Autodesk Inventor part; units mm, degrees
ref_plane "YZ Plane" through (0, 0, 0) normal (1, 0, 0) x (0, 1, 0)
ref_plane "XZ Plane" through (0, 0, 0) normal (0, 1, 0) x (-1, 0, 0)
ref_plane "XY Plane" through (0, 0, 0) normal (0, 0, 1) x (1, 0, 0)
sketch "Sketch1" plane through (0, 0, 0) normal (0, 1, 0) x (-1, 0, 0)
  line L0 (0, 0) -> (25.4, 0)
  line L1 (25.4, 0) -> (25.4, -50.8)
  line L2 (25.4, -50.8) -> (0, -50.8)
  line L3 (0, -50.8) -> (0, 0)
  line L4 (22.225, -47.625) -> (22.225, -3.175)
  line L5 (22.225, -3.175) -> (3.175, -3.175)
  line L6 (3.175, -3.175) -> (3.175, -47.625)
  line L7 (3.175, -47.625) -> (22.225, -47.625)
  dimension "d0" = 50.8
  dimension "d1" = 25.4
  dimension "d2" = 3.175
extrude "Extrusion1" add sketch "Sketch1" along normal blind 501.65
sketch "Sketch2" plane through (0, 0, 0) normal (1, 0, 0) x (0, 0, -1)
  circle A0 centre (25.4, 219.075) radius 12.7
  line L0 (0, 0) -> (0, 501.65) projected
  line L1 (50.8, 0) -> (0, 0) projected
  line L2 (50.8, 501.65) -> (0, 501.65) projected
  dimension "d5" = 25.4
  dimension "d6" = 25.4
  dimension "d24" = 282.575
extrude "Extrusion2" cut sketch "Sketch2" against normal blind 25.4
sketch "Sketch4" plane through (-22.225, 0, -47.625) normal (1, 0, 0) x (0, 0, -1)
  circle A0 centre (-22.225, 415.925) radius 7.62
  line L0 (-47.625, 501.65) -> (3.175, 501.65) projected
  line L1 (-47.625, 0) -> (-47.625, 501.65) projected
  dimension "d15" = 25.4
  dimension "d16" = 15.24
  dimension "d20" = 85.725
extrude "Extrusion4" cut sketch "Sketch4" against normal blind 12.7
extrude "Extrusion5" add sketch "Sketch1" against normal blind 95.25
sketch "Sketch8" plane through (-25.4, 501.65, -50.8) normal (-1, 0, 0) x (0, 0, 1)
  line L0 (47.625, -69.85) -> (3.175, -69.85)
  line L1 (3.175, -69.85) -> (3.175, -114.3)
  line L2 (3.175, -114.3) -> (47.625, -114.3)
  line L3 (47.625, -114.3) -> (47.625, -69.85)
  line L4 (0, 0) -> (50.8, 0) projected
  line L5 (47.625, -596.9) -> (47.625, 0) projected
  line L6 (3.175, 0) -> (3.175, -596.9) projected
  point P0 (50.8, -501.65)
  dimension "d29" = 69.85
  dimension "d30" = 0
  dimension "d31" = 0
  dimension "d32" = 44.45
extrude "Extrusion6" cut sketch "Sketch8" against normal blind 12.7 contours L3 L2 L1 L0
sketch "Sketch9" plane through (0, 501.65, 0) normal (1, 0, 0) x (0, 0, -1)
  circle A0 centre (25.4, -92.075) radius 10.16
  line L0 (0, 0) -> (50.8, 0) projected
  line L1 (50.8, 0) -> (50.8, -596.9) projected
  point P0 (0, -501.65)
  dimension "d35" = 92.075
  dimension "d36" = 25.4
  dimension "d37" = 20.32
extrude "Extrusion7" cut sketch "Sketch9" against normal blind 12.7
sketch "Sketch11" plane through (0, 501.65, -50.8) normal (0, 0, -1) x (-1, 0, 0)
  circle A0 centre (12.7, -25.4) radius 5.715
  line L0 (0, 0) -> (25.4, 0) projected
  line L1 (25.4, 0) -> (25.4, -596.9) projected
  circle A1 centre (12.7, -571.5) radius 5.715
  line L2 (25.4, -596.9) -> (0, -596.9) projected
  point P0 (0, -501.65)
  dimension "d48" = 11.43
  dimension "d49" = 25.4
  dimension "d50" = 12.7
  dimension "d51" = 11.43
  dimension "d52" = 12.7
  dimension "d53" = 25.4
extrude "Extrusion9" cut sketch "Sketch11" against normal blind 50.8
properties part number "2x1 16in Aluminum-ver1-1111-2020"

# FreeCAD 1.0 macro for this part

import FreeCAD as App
import Part
import Sketcher
Q = App.Units.Quantity

doc = App.newDocument("Part")
body = doc.addObject("PartDesign::Body", "Body")

sketch1 = doc.addObject("Sketcher::SketchObject", "Sketch")
body.addObject(sketch1)
sketch1.AttachmentSupport = (doc.XZ_Plane, [""])
sketch1.MapMode = "FlatFace"
sketch1.addGeometry(Part.LineSegment(App.Vector(-25, 0, 0), App.Vector(0, 0, 0)), False)
sketch1.addGeometry(Part.LineSegment(App.Vector(0, 0, 0), App.Vector(0, -51, 0)), False)
sketch1.addGeometry(Part.LineSegment(App.Vector(0, -51, 0), App.Vector(-25, -51, 0)), False)
sketch1.addGeometry(Part.LineSegment(App.Vector(-25, -51, 0), App.Vector(-25, 0, 0)), False)
sketch1.addGeometry(Part.LineSegment(App.Vector(-22, -3, 0), App.Vector(-22, -48, 0)), False)
sketch1.addGeometry(Part.LineSegment(App.Vector(-22, -48, 0), App.Vector(-3, -48, 0)), False)
sketch1.addGeometry(Part.LineSegment(App.Vector(-3, -48, 0), App.Vector(-3, -3, 0)), False)
sketch1.addGeometry(Part.LineSegment(App.Vector(-3, -3, 0), App.Vector(-22, -3, 0)), False)
sketch1.addConstraint(Sketcher.Constraint("Coincident", 0, 2, 1, 1))
sketch1.addConstraint(Sketcher.Constraint("Coincident", 1, 2, 2, 1))
sketch1.addConstraint(Sketcher.Constraint("Coincident", 2, 2, 3, 1))
sketch1.addConstraint(Sketcher.Constraint("Coincident", 3, 2, 0, 1))
sketch1.addConstraint(Sketcher.Constraint("Coincident", 4, 2, 5, 1))
sketch1.addConstraint(Sketcher.Constraint("Coincident", 5, 2, 6, 1))
sketch1.addConstraint(Sketcher.Constraint("Coincident", 6, 2, 7, 1))
sketch1.addConstraint(Sketcher.Constraint("Coincident", 7, 2, 4, 1))
sketch1.addConstraint(Sketcher.Constraint("Horizontal", 0))
sketch1.addConstraint(Sketcher.Constraint("Vertical", 1))
sketch1.addConstraint(Sketcher.Constraint("Horizontal", 2))
sketch1.addConstraint(Sketcher.Constraint("Vertical", 3))
sketch1.addConstraint(Sketcher.Constraint("Vertical", 4))
sketch1.addConstraint(Sketcher.Constraint("Horizontal", 5))
sketch1.addConstraint(Sketcher.Constraint("Vertical", 6))
sketch1.addConstraint(Sketcher.Constraint("Horizontal", 7))
sketch1.addConstraint(Sketcher.Constraint("Coincident", 0, 2, -1, 1))
sketch1.addConstraint(Sketcher.Constraint("DistanceX", 0, 1, 0, 2, Q("1 in")))
sketch1.addConstraint(Sketcher.Constraint("DistanceY", 1, 2, 1, 1, Q("2 in")))
sketch1.addConstraint(Sketcher.Constraint("DistanceX", 5, 2, -1, 1, Q("0.125 in")))
sketch1.addConstraint(Sketcher.Constraint("DistanceY", 6, 2, -1, 1, Q("0.125 in")))
sketch1.addConstraint(Sketcher.Constraint("DistanceX", 2, 2, 4, 2, Q("0.125 in")))
sketch1.addConstraint(Sketcher.Constraint("DistanceY", 2, 2, 4, 2, Q("0.125 in")))
pad1 = doc.addObject("PartDesign::Pad", "Pad")
body.addObject(pad1)
pad1.Profile = sketch1
pad1.Length = Q("19.75 in")
pad1.Reversed = True

sketch2 = doc.addObject("Sketcher::SketchObject", "Sketch001")
body.addObject(sketch2)
sketch2.AttachmentSupport = (doc.YZ_Plane, [""])
sketch2.MapMode = "FlatFace"
sketch2.addGeometry(Part.Circle(App.Vector(219, -25, 0), App.Vector(0, 0, 1), 13), False)
sketch2.addConstraint(Sketcher.Constraint("Diameter", 0, Q("1 in")))
sketch2.addConstraint(Sketcher.Constraint("DistanceY", 0, 3, -1, 1, Q("1 in")))
sketch2.addConstraint(Sketcher.Constraint("DistanceX", -1, 1, 0, 3, Q("8.625 in")))
pocket1 = doc.addObject("PartDesign::Pocket", "Pocket")
body.addObject(pocket1)
pocket1.Profile = sketch2
pocket1.Length = Q("1 in")

sketch3 = doc.addObject("Sketcher::SketchObject", "Sketch002")
body.addObject(sketch3)
sketch3.AttachmentSupport = (doc.YZ_Plane, [""])
sketch3.MapMode = "FlatFace"
sketch3.AttachmentOffset = App.Placement(App.Vector(0, 0, -0.875 * 25.4), App.Rotation())
sketch3.addGeometry(Part.Circle(App.Vector(416, -25, 0), App.Vector(0, 0, 1), 8), False)
sketch3.addConstraint(Sketcher.Constraint("Diameter", 0, Q("0.6 in")))
sketch3.addConstraint(Sketcher.Constraint("DistanceY", 0, 3, -1, 1, Q("1 in")))
sketch3.addConstraint(Sketcher.Constraint("DistanceX", -1, 1, 0, 3, Q("16.375 in")))
pocket2 = doc.addObject("PartDesign::Pocket", "Pocket001")
body.addObject(pocket2)
pocket2.Profile = sketch3
pocket2.Length = Q("0.5 in")

sketch4 = doc.addObject("Sketcher::SketchObject", "Sketch003")
body.addObject(sketch4)
sketch4.AttachmentSupport = (doc.XZ_Plane, [""])
sketch4.MapMode = "FlatFace"
sketch4.addGeometry(Part.LineSegment(App.Vector(-25, 0, 0), App.Vector(0, 0, 0)), False)
sketch4.addGeometry(Part.LineSegment(App.Vector(0, 0, 0), App.Vector(0, -51, 0)), False)
sketch4.addGeometry(Part.LineSegment(App.Vector(0, -51, 0), App.Vector(-25, -51, 0)), False)
sketch4.addGeometry(Part.LineSegment(App.Vector(-25, -51, 0), App.Vector(-25, 0, 0)), False)
sketch4.addGeometry(Part.LineSegment(App.Vector(-22, -3, 0), App.Vector(-22, -48, 0)), False)
sketch4.addGeometry(Part.LineSegment(App.Vector(-22, -48, 0), App.Vector(-3, -48, 0)), False)
sketch4.addGeometry(Part.LineSegment(App.Vector(-3, -48, 0), App.Vector(-3, -3, 0)), False)
sketch4.addGeometry(Part.LineSegment(App.Vector(-3, -3, 0), App.Vector(-22, -3, 0)), False)
sketch4.addConstraint(Sketcher.Constraint("Coincident", 0, 2, 1, 1))
sketch4.addConstraint(Sketcher.Constraint("Coincident", 1, 2, 2, 1))
sketch4.addConstraint(Sketcher.Constraint("Coincident", 2, 2, 3, 1))
sketch4.addConstraint(Sketcher.Constraint("Coincident", 3, 2, 0, 1))
sketch4.addConstraint(Sketcher.Constraint("Coincident", 4, 2, 5, 1))
sketch4.addConstraint(Sketcher.Constraint("Coincident", 5, 2, 6, 1))
sketch4.addConstraint(Sketcher.Constraint("Coincident", 6, 2, 7, 1))
sketch4.addConstraint(Sketcher.Constraint("Coincident", 7, 2, 4, 1))
sketch4.addConstraint(Sketcher.Constraint("Horizontal", 0))
sketch4.addConstraint(Sketcher.Constraint("Vertical", 1))
sketch4.addConstraint(Sketcher.Constraint("Horizontal", 2))
sketch4.addConstraint(Sketcher.Constraint("Vertical", 3))
sketch4.addConstraint(Sketcher.Constraint("Vertical", 4))
sketch4.addConstraint(Sketcher.Constraint("Horizontal", 5))
sketch4.addConstraint(Sketcher.Constraint("Vertical", 6))
sketch4.addConstraint(Sketcher.Constraint("Horizontal", 7))
sketch4.addConstraint(Sketcher.Constraint("Coincident", 0, 2, -1, 1))
sketch4.addConstraint(Sketcher.Constraint("DistanceX", 0, 1, 0, 2, Q("1 in")))
sketch4.addConstraint(Sketcher.Constraint("DistanceY", 1, 2, 1, 1, Q("2 in")))
sketch4.addConstraint(Sketcher.Constraint("DistanceX", 5, 2, -1, 1, Q("0.125 in")))
sketch4.addConstraint(Sketcher.Constraint("DistanceY", 6, 2, -1, 1, Q("0.125 in")))
sketch4.addConstraint(Sketcher.Constraint("DistanceX", 2, 2, 4, 2, Q("0.125 in")))
sketch4.addConstraint(Sketcher.Constraint("DistanceY", 2, 2, 4, 2, Q("0.125 in")))
pad2 = doc.addObject("PartDesign::Pad", "Pad001")
body.addObject(pad2)
pad2.Profile = sketch4
pad2.Length = Q("3.75 in")

sketch5 = doc.addObject("Sketcher::SketchObject", "Sketch004")
body.addObject(sketch5)
sketch5.AttachmentSupport = (doc.YZ_Plane, [""])
sketch5.MapMode = "FlatFace"
sketch5.AttachmentOffset = App.Placement(App.Vector(0, 0, -1 * 25.4), App.Rotation())
sketch5.addGeometry(Part.LineSegment(App.Vector(387, -3, 0), App.Vector(432, -3, 0)), False)
sketch5.addGeometry(Part.LineSegment(App.Vector(432, -3, 0), App.Vector(432, -48, 0)), False)
sketch5.addGeometry(Part.LineSegment(App.Vector(432, -48, 0), App.Vector(387, -48, 0)), False)
sketch5.addGeometry(Part.LineSegment(App.Vector(387, -48, 0), App.Vector(387, -3, 0)), False)
sketch5.addConstraint(Sketcher.Constraint("Coincident", 0, 2, 1, 1))
sketch5.addConstraint(Sketcher.Constraint("Coincident", 1, 2, 2, 1))
sketch5.addConstraint(Sketcher.Constraint("Coincident", 2, 2, 3, 1))
sketch5.addConstraint(Sketcher.Constraint("Coincident", 3, 2, 0, 1))
sketch5.addConstraint(Sketcher.Constraint("Horizontal", 0))
sketch5.addConstraint(Sketcher.Constraint("Vertical", 1))
sketch5.addConstraint(Sketcher.Constraint("Horizontal", 2))
sketch5.addConstraint(Sketcher.Constraint("Vertical", 3))
sketch5.addConstraint(Sketcher.Constraint("Equal", 2, 1))
sketch5.addConstraint(Sketcher.Constraint("DistanceX", 0, 1, 0, 2, Q("1.75 in")))
sketch5.addConstraint(Sketcher.Constraint("DistanceX", -1, 1, 0, 2, Q("17 in")))
sketch5.addConstraint(Sketcher.Constraint("DistanceY", 0, 2, -1, 1, Q("0.125 in")))
pocket3 = doc.addObject("PartDesign::Pocket", "Pocket002")
body.addObject(pocket3)
pocket3.Profile = sketch5
pocket3.Length = Q("0.5 in")
pocket3.Reversed = True

sketch6 = doc.addObject("Sketcher::SketchObject", "Sketch005")
body.addObject(sketch6)
sketch6.AttachmentSupport = (doc.YZ_Plane, [""])
sketch6.MapMode = "FlatFace"
sketch6.addGeometry(Part.Circle(App.Vector(410, -25, 0), App.Vector(0, 0, 1), 10), False)
sketch6.addConstraint(Sketcher.Constraint("Diameter", 0, Q("0.8 in")))
sketch6.addConstraint(Sketcher.Constraint("DistanceY", 0, 3, -1, 1, Q("1 in")))
sketch6.addConstraint(Sketcher.Constraint("DistanceX", -1, 1, 0, 3, Q("16.125 in")))
pocket4 = doc.addObject("PartDesign::Pocket", "Pocket003")
body.addObject(pocket4)
pocket4.Profile = sketch6
pocket4.Length = Q("0.5 in")

sketch7 = doc.addObject("Sketcher::SketchObject", "Sketch006")
body.addObject(sketch7)
sketch7.AttachmentSupport = (doc.XY_Plane, [""])
sketch7.MapMode = "FlatFace"
sketch7.AttachmentOffset = App.Placement(App.Vector(0, 0, -2 * 25.4), App.Rotation())
sketch7.addGeometry(Part.Circle(App.Vector(-13, 476, 0), App.Vector(0, 0, 1), 6), False)
sketch7.addGeometry(Part.Circle(App.Vector(-13, -70, 0), App.Vector(0, 0, 1), 6), False)
sketch7.addConstraint(Sketcher.Constraint("Equal", 0, 1))
sketch7.addConstraint(Sketcher.Constraint("Vertical", 0, 3, 1, 3))
sketch7.addConstraint(Sketcher.Constraint("Diameter", 0, Q("0.45 in")))
sketch7.addConstraint(Sketcher.Constraint("DistanceX", 0, 3, -1, 1, Q("0.5 in")))
sketch7.addConstraint(Sketcher.Constraint("DistanceY", 1, 3, 0, 3, Q("21.5 in")))
sketch7.addConstraint(Sketcher.Constraint("DistanceY", -1, 1, 0, 3, Q("18.75 in")))
pocket5 = doc.addObject("PartDesign::Pocket", "Pocket004")
body.addObject(pocket5)
pocket5.Profile = sketch7
pocket5.Length = Q("2 in")
pocket5.Reversed = True

doc.recompute()
